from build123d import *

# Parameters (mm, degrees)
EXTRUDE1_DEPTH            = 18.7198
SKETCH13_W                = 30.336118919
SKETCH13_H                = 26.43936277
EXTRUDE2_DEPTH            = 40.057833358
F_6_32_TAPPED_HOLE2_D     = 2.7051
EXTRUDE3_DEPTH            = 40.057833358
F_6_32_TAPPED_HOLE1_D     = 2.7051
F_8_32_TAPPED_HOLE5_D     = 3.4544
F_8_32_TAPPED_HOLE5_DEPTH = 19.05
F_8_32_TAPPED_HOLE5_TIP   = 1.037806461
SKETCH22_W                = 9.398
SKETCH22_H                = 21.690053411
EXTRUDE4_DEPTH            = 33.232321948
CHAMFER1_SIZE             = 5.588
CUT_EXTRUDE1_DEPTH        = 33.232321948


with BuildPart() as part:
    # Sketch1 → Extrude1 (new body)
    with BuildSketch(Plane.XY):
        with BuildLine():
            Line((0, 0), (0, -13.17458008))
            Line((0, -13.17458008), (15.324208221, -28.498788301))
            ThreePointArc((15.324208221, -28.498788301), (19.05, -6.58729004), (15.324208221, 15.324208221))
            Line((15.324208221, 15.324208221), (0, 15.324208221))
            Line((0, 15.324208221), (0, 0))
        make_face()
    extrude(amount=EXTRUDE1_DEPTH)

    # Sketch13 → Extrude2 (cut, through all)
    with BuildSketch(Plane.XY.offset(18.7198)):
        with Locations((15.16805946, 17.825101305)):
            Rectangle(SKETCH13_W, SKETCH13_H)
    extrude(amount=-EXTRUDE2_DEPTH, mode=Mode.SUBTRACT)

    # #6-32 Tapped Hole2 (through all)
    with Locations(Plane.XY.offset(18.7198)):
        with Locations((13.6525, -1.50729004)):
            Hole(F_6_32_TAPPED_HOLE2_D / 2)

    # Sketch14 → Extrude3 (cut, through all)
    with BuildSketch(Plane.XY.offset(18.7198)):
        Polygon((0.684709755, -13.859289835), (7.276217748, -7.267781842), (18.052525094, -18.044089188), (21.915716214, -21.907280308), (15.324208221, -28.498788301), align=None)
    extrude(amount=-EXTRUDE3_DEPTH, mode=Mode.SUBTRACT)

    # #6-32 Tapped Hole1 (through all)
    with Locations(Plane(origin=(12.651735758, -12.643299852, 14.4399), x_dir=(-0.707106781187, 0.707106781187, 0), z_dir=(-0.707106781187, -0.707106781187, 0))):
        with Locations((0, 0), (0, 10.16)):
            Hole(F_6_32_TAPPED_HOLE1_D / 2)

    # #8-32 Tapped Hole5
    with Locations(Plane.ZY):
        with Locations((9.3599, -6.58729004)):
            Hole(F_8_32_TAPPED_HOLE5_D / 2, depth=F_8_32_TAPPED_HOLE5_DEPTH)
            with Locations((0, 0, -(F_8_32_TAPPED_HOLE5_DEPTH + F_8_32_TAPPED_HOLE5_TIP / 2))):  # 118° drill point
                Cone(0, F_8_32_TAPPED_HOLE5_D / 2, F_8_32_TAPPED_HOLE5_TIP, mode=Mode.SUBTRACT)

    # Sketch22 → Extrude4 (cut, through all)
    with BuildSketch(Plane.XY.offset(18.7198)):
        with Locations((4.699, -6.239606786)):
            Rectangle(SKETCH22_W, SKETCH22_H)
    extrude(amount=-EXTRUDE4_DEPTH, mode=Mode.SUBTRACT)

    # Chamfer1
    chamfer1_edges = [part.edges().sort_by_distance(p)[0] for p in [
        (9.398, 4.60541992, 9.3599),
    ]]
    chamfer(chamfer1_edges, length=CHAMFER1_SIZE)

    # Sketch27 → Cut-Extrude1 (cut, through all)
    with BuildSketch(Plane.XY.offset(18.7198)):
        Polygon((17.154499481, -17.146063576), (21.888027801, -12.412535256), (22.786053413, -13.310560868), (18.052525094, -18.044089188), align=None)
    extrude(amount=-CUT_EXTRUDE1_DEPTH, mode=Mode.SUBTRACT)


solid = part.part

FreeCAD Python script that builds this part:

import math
import FreeCAD as App
import Part
import Sketcher

V = App.Vector
Q = App.Units.Quantity


def edges_at(feature, points):
    """Names of the edges that pass closest to the given points."""
    edges = feature.Shape.Edges
    near = lambda p: min(range(len(edges)), key=lambda i: edges[i].distToShape(Part.Vertex(*p))[0])
    return sorted({f"Edge{near(p) + 1}" for p in points})


def add_polygon(sketch, points):
    """Adds a closed chain of lines whose ends are joined by coincident constraints."""
    first, n = sketch.GeometryCount, len(points)
    for a, b in zip(points, points[1:] + points[:1]):
        sketch.addGeometry(Part.LineSegment(App.Vector(*a, 0), App.Vector(*b, 0)), False)
    for i in range(n):
        sketch.addConstraint(Sketcher.Constraint("Coincident", first + i, 2, first + (i + 1) % n, 1))

doc = App.newDocument("Part")
body = doc.addObject("PartDesign::Body", "Body")

sketch1 = body.newObject("Sketcher::SketchObject", "Sketch")
sketch1.AttachmentSupport = (doc.getObject("XY_Plane"), [""])
sketch1.MapMode = "FlatFace"
sketch1.addGeometry(Part.LineSegment(V(0, -13, 0), V(15, -28, 0)), False)
sketch1.addGeometry(Part.ArcOfCircle(Part.Circle(V(-47, -7, 0), V(0, 0, 1), 66), math.radians(-19), math.radians(19)), False)
sketch1.addGeometry(Part.LineSegment(V(15, 15, 0), V(0, 15, 0)), False)
sketch1.addGeometry(Part.LineSegment(V(0, 15, 0), V(0, -13, 0)), False)
sketch1.addConstraint(Sketcher.Constraint("Coincident", 0, 2, 1, 1))
sketch1.addConstraint(Sketcher.Constraint("Coincident", 1, 2, 2, 1))
sketch1.addConstraint(Sketcher.Constraint("Coincident", 2, 2, 3, 1))
sketch1.addConstraint(Sketcher.Constraint("Coincident", 3, 2, 0, 1))
sketch1.addConstraint(Sketcher.Constraint("Horizontal", 2))
sketch1.addConstraint(Sketcher.Constraint("Vertical", 3))
sketch1.addConstraint(Sketcher.Constraint("PointOnObject", 2, 2, -2))
sketch1.addConstraint(Sketcher.Constraint("Vertical", 0, 2, 1, 2))
sketch1.addConstraint(Sketcher.Constraint("Radius", 1, Q("2.61 in")))
sketch1.addConstraint(Sketcher.Constraint("Angle", 0, Q("-45 deg")))
sketch1.addConstraint(Sketcher.Constraint("DistanceX", 1, 3, -1, 1, Q("1.86 in")))
sketch1.addConstraint(Sketcher.Constraint("DistanceX", 2, 2, 2, 1, 15.324208))
sketch1.addConstraint(Sketcher.Constraint("DistanceY", 1, 3, -1, 1, 6.58729))
pad1 = body.newObject("PartDesign::Pad", "Pad")
pad1.Profile = sketch1
pad1.Length = Q("0.737 in")

sketch2 = body.newObject("Sketcher::SketchObject", "Sketch001")
sketch2.AttachmentSupport = (doc.getObject("XY_Plane"), [""])
sketch2.MapMode = "FlatFace"
sketch2.AttachmentOffset = App.Placement(V(0, 0, 0.737 * 25.4), App.Rotation())
add_polygon(sketch2, [(0, 31), (0, 5), (30, 5), (30, 31)])
sketch2.addConstraint(Sketcher.Constraint("Vertical", 0))
sketch2.addConstraint(Sketcher.Constraint("Horizontal", 1))
sketch2.addConstraint(Sketcher.Constraint("Vertical", 2))
sketch2.addConstraint(Sketcher.Constraint("Horizontal", 3))
sketch2.addConstraint(Sketcher.Constraint("PointOnObject", 0, 2, -2))
sketch2.addConstraint(Sketcher.Constraint("DistanceX", 1, 1, 1, 2, 30.336119))
sketch2.addConstraint(Sketcher.Constraint("DistanceY", 0, 2, 0, 1, 26.439363))
sketch2.addConstraint(Sketcher.Constraint("DistanceY", -1, 1, 0, 2, 4.60542))
pocket1 = body.newObject("PartDesign::Pocket", "Pocket")
pocket1.Profile = sketch2
pocket1.Type = "ThroughAll"

sketch3 = body.newObject("Sketcher::SketchObject", "Sketch002")
sketch3.AttachmentSupport = (doc.getObject("XY_Plane"), [""])
sketch3.MapMode = "FlatFace"
sketch3.AttachmentOffset = App.Placement(V(0, 0, 0.737 * 25.4), App.Rotation())
sketch3.addGeometry(Part.Circle(V(13.7, -1.5, 0), V(0, 0, 1), 1.4), False)
sketch3.addConstraint(Sketcher.Constraint("Diameter", 0, Q("0.1065 in")))
sketch3.addConstraint(Sketcher.Constraint("DistanceX", -1, 1, 0, 3, Q("0.5375 in")))
sketch3.addConstraint(Sketcher.Constraint("DistanceY", 0, 3, -1, 1, 1.50729))
doc.recompute()
hole = body.newObject("PartDesign::Hole", "Hole")
hole.Profile = sketch3
hole.ThreadType = "None"
hole.Diameter = Q("0.1065 in")
hole.DepthType = "ThroughAll"

sketch4 = body.newObject("Sketcher::SketchObject", "Sketch003")
sketch4.AttachmentSupport = (doc.getObject("XY_Plane"), [""])
sketch4.MapMode = "FlatFace"
sketch4.AttachmentOffset = App.Placement(V(0, 0, 0.737 * 25.4), App.Rotation())
add_polygon(sketch4, [(7, -7), (1, -14), (15, -28), (22, -22)])
sketch4.addConstraint(Sketcher.Constraint("Perpendicular", 0, 1))
sketch4.addConstraint(Sketcher.Constraint("Perpendicular", 1, 2))
sketch4.addConstraint(Sketcher.Constraint("Perpendicular", 2, 3))
sketch4.addConstraint(Sketcher.Constraint("Angle", 0, Q("-135 deg")))
sketch4.addConstraint(Sketcher.Constraint("Distance", 0, Q("0.367 in")))
sketch4.addConstraint(Sketcher.Constraint("DistanceX", 0, 2, 1, 2, 14.639498))
sketch4.addConstraint(Sketcher.Constraint("DistanceX", -1, 1, 0, 2, 0.68471))
sketch4.addConstraint(Sketcher.Constraint("DistanceY", 0, 2, -1, 1, 13.85929))
pocket2 = body.newObject("PartDesign::Pocket", "Pocket001")
pocket2.Profile = sketch4
pocket2.Type = "ThroughAll"

sketch5 = body.newObject("Sketcher::SketchObject", "Sketch004")
sketch5.Placement = App.Placement(V(0.004218, 0.004218, 0), App.Rotation(V(-0.707106781, 0.707106781, 0), V(0, 0, -0.999999999), V(-0.707106781, -0.707106781, 0), "ZXY"))
sketch5.addGeometry(Part.Circle(V(-17.9, -14.4, 0), V(0, 0, 1), 1.4), False)
sketch5.addGeometry(Part.Circle(V(-17.9, -4.3, 0), V(0, 0, 1), 1.4), False)
sketch5.addConstraint(Sketcher.Constraint("Equal", 0, 1))
sketch5.addConstraint(Sketcher.Constraint("Vertical", 0, 3, 1, 3))
sketch5.addConstraint(Sketcher.Constraint("Diameter", 0, Q("0.1065 in")))
sketch5.addConstraint(Sketcher.Constraint("DistanceY", 0, 3, 1, 3, Q("0.4 in")))
sketch5.addConstraint(Sketcher.Constraint("DistanceY", 0, 3, -1, 1, Q("0.5685 in")))
sketch5.addConstraint(Sketcher.Constraint("DistanceX", 0, 3, -1, 1, 17.886291))
doc.recompute()
hole2 = body.newObject("PartDesign::Hole", "Hole001")
hole2.Profile = sketch5
hole2.ThreadType = "None"
hole2.Diameter = Q("0.1065 in")
hole2.DepthType = "ThroughAll"

sketch6 = body.newObject("Sketcher::SketchObject", "Sketch005")
sketch6.AttachmentSupport = (doc.getObject("YZ_Plane"), [""])
sketch6.MapMode = "FlatFace"
sketch6.addGeometry(Part.Circle(V(-6.6, 9.4, 0), V(0, 0, 1), 1.7), False)
sketch6.addConstraint(Sketcher.Constraint("Diameter", 0, Q("0.136 in")))
sketch6.addConstraint(Sketcher.Constraint("DistanceY", -1, 1, 0, 3, Q("0.3685 in")))
sketch6.addConstraint(Sketcher.Constraint("DistanceX", 0, 3, -1, 1, 6.58729))
doc.recompute()
hole3 = body.newObject("PartDesign::Hole", "Hole002")
hole3.Profile = sketch6
hole3.ThreadType = "None"
hole3.Diameter = Q("0.136 in")
hole3.DepthType = "Dimension"
hole3.Depth = Q("0.75 in")
hole3.DrillPoint = "Angled"
hole3.DrillPointAngle = 118
hole3.Reversed = True

sketch7 = body.newObject("Sketcher::SketchObject", "Sketch006")
sketch7.AttachmentSupport = (doc.getObject("XY_Plane"), [""])
sketch7.MapMode = "FlatFace"
sketch7.AttachmentOffset = App.Placement(V(0, 0, 0.737 * 25.4), App.Rotation())
add_polygon(sketch7, [(0, 5), (0, -17), (9, -17), (9, 5)])
sketch7.addConstraint(Sketcher.Constraint("Vertical", 0))
sketch7.addConstraint(Sketcher.Constraint("Horizontal", 1))
sketch7.addConstraint(Sketcher.Constraint("Vertical", 2))
sketch7.addConstraint(Sketcher.Constraint("Horizontal", 3))
sketch7.addConstraint(Sketcher.Constraint("PointOnObject", 0, 2, -2))
sketch7.addConstraint(Sketcher.Constraint("DistanceX", 1, 1, 1, 2, Q("0.37 in")))
sketch7.addConstraint(Sketcher.Constraint("DistanceY", 0, 2, 0, 1, 21.690053))
sketch7.addConstraint(Sketcher.Constraint("DistanceY", -1, 1, 2, 2, 4.60542))
pocket3 = body.newObject("PartDesign::Pocket", "Pocket002")
pocket3.Profile = sketch7
pocket3.Type = "ThroughAll"
doc.recompute()

chamfer = body.newObject("PartDesign::Chamfer", "Chamfer")
chamfer.Base = (pocket3, edges_at(pocket3, [(9.398, 4.605, 9.36)]))
chamfer.Size = Q("0.22 in")

sketch8 = body.newObject("Sketcher::SketchObject", "Sketch007")
sketch8.AttachmentSupport = (doc.getObject("XY_Plane"), [""])
sketch8.MapMode = "FlatFace"
sketch8.AttachmentOffset = App.Placement(V(0, 0, 0.737 * 25.4), App.Rotation())
add_polygon(sketch8, [(21.9, -12.4), (17.2, -17.1), (18.1, -18), (22.8, -13.3)])
sketch8.addConstraint(Sketcher.Constraint("Perpendicular", 0, 1))
sketch8.addConstraint(Sketcher.Constraint("Perpendicular", 1, 2))
sketch8.addConstraint(Sketcher.Constraint("Perpendicular", 2, 3))
sketch8.addConstraint(Sketcher.Constraint("Angle", 0, Q("-135 deg")))
sketch8.addConstraint(Sketcher.Constraint("Distance", 1, Q("0.05 in")))
sketch8.addConstraint(Sketcher.Constraint("DistanceX", -1, 1, 0, 2, 17.154499))
sketch8.addConstraint(Sketcher.Constraint("Distance", 0, 6.69422))
sketch8.addConstraint(Sketcher.Constraint("DistanceY", 1, 2, -1, 1, 18.044089))
pocket4 = body.newObject("PartDesign::Pocket", "Pocket003")
pocket4.Profile = sketch8
pocket4.Type = "ThroughAll"

doc.recompute()
